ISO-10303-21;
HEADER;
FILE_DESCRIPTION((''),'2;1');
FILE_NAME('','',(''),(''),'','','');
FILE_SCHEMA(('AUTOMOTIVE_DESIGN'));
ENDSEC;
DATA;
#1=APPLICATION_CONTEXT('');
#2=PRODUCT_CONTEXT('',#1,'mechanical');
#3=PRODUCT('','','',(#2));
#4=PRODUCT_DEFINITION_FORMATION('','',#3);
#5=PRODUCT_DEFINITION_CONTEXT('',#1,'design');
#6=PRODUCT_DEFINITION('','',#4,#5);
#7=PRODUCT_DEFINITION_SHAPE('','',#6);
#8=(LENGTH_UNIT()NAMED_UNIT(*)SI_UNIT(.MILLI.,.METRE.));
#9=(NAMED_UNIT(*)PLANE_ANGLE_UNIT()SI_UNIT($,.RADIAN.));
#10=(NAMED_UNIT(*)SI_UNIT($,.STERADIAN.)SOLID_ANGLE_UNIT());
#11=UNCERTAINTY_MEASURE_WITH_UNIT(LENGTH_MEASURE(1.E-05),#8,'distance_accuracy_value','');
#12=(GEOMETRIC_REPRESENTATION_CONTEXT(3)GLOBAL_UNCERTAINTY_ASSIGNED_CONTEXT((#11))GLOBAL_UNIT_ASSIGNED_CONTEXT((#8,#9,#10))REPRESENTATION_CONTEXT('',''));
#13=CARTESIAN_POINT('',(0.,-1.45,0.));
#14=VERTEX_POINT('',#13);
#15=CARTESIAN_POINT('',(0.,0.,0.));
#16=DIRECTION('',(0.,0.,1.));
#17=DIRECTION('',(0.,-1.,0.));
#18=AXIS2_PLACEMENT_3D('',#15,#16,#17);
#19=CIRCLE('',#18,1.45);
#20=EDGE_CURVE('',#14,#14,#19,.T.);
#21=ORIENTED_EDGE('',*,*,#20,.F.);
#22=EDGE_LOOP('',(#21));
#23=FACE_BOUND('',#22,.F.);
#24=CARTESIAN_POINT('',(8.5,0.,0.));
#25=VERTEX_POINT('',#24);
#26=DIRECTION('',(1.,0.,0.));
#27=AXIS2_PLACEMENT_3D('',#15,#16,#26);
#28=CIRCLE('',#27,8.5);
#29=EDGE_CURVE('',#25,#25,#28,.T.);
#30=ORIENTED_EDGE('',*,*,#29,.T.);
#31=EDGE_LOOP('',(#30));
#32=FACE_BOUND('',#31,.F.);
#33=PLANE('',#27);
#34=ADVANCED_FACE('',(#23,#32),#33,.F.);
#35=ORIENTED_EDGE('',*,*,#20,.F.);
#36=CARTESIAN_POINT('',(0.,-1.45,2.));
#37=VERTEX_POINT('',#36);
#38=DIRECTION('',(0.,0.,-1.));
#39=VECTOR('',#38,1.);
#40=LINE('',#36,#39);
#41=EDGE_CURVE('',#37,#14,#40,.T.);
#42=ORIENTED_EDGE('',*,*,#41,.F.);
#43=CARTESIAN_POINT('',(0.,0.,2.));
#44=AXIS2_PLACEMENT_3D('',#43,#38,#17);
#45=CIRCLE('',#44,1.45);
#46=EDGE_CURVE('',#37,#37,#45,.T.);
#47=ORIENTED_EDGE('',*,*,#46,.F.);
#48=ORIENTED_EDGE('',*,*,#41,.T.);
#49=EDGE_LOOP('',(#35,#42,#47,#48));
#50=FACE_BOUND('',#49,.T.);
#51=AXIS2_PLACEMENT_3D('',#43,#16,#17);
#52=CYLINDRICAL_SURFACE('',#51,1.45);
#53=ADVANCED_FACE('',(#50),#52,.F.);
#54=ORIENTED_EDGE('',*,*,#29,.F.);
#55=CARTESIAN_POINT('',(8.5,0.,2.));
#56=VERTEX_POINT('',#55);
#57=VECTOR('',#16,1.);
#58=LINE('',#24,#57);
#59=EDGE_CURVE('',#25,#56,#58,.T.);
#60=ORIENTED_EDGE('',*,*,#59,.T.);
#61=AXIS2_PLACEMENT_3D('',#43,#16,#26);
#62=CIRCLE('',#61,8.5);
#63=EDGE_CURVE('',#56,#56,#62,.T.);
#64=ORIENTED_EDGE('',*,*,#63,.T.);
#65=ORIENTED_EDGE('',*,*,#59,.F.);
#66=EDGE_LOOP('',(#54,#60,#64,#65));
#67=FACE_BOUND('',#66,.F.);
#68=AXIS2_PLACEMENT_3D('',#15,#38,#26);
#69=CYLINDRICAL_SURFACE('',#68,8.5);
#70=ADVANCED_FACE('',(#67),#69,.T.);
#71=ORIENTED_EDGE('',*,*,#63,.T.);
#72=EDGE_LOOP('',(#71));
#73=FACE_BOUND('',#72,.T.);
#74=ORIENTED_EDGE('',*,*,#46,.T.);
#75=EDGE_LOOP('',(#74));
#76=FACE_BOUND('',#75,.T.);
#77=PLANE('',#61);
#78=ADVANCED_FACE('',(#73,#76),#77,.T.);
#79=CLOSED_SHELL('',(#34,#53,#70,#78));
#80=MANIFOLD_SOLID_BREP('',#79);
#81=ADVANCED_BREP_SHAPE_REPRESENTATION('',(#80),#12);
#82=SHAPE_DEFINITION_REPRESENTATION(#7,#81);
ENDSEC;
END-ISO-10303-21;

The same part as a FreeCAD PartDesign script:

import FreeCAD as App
import Part
import Sketcher

doc = App.newDocument("Part")
body = doc.addObject("PartDesign::Body", "Body")

# Sketch on XY plane
sketch1 = body.newObject("Sketcher::SketchObject", "Sketch")
sketch1.AttachmentSupport = (doc.getObject("XY_Plane"), [""])
sketch1.MapMode = "FlatFace"
sketch1.addGeometry(Part.Circle(App.Vector(0, 0, 0), App.Vector(0, 0, 1), 8), False)
sketch1.addConstraint(Sketcher.Constraint("Coincident", 0, 3, -1, 1))
sketch1.addConstraint(Sketcher.Constraint("Diameter", 0, 17.0))
pad1 = body.newObject("PartDesign::Pad", "Pad")
pad1.Profile = sketch1
pad1.Length = 2

# Sketch on XY plane
sketch2 = body.newObject("Sketcher::SketchObject", "Sketch001")
sketch2.AttachmentSupport = (doc.getObject("XY_Plane"), [""])
sketch2.MapMode = "FlatFace"
sketch2.AttachmentOffset = App.Placement(App.Vector(0, 0, 2), App.Rotation())
sketch2.addGeometry(Part.Circle(App.Vector(0, 0, 0), App.Vector(0, 0, 1), 1.4), False)
sketch2.addConstraint(Sketcher.Constraint("Coincident", 0, 3, -1, 1))
sketch2.addConstraint(Sketcher.Constraint("Diameter", 0, 2.9))
doc.recompute()
hole = body.newObject("PartDesign::Hole", "Hole")
hole.Profile = sketch2
hole.ThreadType = "None"
hole.Diameter = 2.9
hole.DepthType = "ThroughAll"

doc.recompute()
